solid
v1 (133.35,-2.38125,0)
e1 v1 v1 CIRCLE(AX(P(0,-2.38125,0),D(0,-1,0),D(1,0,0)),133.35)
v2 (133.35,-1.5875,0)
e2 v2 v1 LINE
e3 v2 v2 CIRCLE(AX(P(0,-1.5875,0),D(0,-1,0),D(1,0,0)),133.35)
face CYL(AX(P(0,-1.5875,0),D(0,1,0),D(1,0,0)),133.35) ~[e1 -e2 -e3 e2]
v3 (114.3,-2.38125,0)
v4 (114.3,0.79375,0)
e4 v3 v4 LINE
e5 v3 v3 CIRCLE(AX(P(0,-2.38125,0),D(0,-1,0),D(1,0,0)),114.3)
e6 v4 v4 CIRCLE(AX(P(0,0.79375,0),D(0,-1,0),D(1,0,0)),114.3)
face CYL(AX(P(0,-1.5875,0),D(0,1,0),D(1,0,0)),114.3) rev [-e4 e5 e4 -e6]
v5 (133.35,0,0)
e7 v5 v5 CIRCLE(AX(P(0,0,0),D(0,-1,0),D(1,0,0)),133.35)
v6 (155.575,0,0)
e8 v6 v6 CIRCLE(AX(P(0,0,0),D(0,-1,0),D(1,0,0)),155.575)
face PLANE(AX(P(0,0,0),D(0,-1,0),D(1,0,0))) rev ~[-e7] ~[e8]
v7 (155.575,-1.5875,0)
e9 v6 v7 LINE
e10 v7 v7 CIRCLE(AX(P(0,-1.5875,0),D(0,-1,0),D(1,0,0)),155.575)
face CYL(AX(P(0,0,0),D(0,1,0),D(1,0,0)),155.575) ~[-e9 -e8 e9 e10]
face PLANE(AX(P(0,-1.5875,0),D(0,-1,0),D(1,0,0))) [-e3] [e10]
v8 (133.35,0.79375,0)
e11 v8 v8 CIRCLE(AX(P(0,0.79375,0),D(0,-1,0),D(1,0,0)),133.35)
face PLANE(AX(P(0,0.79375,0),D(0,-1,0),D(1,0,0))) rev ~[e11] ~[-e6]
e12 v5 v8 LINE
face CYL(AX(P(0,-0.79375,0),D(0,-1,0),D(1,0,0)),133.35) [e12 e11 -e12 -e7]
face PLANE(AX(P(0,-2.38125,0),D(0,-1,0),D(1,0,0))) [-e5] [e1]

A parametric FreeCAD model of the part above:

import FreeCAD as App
import Part
import Sketcher
from FreeCAD import Vector
Q = App.Units.Quantity

doc = App.newDocument("Part")
body = doc.addObject("PartDesign::Body", "Body")

sketch1 = body.newObject("Sketcher::SketchObject", "Sketch")
sketch1.AttachmentSupport = (doc.getObject("XZ_Plane"), [""])
sketch1.MapMode = "FlatFace"
sketch1.addGeometry([
    Part.Circle(Vector(0, 0, 0), Vector(0, 0, 1), 156),
    Part.Circle(Vector(0, 0, 0), Vector(0, 0, 1), 114),
], False)
sketch1.addConstraint([
    Sketcher.Constraint("Coincident", 0, 3, -1, 1),
    Sketcher.Constraint("Coincident", 1, 3, -1, 1),
    Sketcher.Constraint("Diameter", 1, Q("9 in")),
    Sketcher.Constraint("Diameter", 0, Q("12.25 in")),
])
pad1 = body.newObject("PartDesign::Pad", "Pad")
pad1.Profile = sketch1
pad1.Length = Q("0.0625 in")

sketch2 = body.newObject("Sketcher::SketchObject", "Sketch001")
sketch2.AttachmentSupport = (doc.getObject("XZ_Plane"), [""])
sketch2.MapMode = "FlatFace"
sketch2.AttachmentOffset = App.Placement(Vector(0, 0, 0.03125 * 25.4), App.Rotation())
sketch2.addGeometry([
    Part.Circle(Vector(0, 0, 0), Vector(0, 0, 1), 133),
    Part.Circle(Vector(0, 0, 0), Vector(0, 0, 1), 114),
], False)
sketch2.addConstraint([
    Sketcher.Constraint("Coincident", 0, 3, -1, 1),
    Sketcher.Constraint("Coincident", 1, 3, -1, 1),
    Sketcher.Constraint("Diameter", 1, Q("9 in")),
    Sketcher.Constraint("Diameter", 0, Q("10.5 in")),
])
pad2 = body.newObject("PartDesign::Pad", "Pad001")
pad2.Profile = sketch2
pad2.Length = Q("0.0625 in")
pad2.Reversed = True

sketch3 = body.newObject("Sketcher::SketchObject", "Sketch002")
sketch3.AttachmentSupport = (doc.getObject("XZ_Plane"), [""])
sketch3.MapMode = "FlatFace"
sketch3.AttachmentOffset = App.Placement(Vector(0, 0, 0.0625 * 25.4), App.Rotation())
sketch3.addGeometry([
    Part.Circle(Vector(0, 0, 0), Vector(0, 0, 1), 133),
    Part.Circle(Vector(0, 0, 0), Vector(0, 0, 1), 114),
], False)
sketch3.addConstraint([
    Sketcher.Constraint("Coincident", 0, 3, -1, 1),
    Sketcher.Constraint("Coincident", 1, 3, -1, 1),
    Sketcher.Constraint("Diameter", 1, Q("9 in")),
    Sketcher.Constraint("Diameter", 0, Q("10.5 in")),
])
pad3 = body.newObject("PartDesign::Pad", "Pad002")
pad3.Profile = sketch3
pad3.Length = Q("0.03125 in")

doc.recompute()
